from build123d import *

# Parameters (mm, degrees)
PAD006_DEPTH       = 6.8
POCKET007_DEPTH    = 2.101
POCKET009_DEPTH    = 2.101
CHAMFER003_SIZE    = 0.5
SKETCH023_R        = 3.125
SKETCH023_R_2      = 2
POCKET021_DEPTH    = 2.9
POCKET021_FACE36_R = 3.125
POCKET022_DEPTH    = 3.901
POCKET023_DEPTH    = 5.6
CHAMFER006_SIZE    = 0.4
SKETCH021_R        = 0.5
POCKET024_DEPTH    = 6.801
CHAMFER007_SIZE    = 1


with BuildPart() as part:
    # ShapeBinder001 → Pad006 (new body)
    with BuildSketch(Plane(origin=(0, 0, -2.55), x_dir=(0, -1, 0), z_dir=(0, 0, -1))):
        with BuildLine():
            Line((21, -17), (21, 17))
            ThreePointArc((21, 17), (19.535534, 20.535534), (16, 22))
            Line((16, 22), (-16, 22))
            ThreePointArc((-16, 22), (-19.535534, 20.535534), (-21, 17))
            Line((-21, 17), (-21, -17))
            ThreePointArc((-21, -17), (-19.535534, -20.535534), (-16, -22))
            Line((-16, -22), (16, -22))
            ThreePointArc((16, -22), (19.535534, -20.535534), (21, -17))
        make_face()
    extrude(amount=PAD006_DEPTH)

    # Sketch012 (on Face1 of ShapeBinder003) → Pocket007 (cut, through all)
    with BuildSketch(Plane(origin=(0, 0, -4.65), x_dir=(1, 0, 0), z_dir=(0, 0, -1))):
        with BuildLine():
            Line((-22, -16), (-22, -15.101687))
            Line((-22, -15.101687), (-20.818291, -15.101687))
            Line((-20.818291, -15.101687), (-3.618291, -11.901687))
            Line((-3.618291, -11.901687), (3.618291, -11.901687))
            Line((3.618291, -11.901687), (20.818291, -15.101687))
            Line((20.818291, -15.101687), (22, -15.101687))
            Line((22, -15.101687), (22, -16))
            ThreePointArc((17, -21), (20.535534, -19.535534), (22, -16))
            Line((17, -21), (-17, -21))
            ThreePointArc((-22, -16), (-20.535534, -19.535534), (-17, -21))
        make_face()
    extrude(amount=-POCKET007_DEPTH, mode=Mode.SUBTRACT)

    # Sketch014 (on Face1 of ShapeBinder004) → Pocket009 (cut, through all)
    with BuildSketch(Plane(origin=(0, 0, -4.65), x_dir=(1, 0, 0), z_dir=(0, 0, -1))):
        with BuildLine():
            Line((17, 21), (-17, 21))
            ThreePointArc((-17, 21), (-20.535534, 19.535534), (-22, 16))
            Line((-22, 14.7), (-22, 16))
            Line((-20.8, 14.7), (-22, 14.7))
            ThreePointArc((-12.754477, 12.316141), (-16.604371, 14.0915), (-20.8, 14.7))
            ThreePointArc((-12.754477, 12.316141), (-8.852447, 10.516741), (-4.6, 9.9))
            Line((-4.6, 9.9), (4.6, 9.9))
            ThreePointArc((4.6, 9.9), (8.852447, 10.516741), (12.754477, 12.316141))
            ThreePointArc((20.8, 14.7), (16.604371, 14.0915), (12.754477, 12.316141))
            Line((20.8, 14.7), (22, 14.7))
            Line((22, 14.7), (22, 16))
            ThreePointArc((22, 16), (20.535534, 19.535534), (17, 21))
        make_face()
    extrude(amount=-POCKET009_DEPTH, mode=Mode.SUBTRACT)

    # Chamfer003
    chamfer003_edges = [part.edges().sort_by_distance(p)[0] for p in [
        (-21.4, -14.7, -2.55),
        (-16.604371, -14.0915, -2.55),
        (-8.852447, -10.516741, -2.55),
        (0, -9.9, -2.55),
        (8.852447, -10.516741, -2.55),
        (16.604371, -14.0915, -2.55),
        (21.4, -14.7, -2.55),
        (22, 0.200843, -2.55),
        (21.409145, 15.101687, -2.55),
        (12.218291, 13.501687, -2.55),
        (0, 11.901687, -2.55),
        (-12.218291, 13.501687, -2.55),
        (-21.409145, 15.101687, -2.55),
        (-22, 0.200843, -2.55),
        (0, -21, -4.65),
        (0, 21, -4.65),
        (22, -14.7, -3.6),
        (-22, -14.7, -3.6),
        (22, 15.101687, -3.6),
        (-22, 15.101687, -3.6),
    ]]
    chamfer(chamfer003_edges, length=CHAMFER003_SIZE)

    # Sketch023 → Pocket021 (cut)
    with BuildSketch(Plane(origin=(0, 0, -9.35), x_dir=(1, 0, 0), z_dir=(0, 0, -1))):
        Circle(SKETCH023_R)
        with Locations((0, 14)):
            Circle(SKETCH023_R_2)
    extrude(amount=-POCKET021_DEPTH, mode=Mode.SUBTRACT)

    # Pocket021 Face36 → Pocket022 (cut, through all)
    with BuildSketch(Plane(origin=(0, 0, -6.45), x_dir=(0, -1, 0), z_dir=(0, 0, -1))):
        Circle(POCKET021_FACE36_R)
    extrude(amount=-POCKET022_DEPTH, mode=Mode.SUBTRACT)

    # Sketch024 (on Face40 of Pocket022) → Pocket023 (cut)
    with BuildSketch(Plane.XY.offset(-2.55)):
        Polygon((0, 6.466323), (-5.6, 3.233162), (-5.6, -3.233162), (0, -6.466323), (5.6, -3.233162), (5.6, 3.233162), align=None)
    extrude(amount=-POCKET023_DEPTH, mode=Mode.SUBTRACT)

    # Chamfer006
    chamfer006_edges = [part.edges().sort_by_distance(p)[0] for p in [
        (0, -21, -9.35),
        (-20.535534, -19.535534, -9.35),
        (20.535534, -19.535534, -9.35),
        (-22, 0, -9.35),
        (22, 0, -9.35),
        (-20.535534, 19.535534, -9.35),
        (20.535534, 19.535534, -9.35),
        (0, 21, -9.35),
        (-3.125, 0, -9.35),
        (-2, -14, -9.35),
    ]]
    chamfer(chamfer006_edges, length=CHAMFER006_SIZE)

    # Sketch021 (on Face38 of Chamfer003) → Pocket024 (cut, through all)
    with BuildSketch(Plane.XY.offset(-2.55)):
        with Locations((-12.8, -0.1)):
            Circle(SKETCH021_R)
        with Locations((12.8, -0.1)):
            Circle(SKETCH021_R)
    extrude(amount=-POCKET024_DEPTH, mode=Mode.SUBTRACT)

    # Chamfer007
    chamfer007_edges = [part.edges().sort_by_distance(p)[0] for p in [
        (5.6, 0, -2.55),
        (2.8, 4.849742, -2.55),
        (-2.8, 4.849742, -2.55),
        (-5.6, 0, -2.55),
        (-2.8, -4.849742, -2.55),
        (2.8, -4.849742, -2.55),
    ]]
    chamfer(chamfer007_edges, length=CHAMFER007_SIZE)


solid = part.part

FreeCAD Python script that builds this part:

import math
import FreeCAD as App
import Part
import Sketcher

V = App.Vector
Q = App.Units.Quantity


def edges_at(feature, points):
    """Names of the edges that pass closest to the given points."""
    edges = feature.Shape.Edges
    near = lambda p: min(range(len(edges)), key=lambda i: edges[i].distToShape(Part.Vertex(*p))[0])
    return sorted({f"Edge{near(p) + 1}" for p in points})


def add_polygon(sketch, points):
    """Adds a closed chain of lines whose ends are joined by coincident constraints."""
    first, n = sketch.GeometryCount, len(points)
    for a, b in zip(points, points[1:] + points[:1]):
        sketch.addGeometry(Part.LineSegment(App.Vector(*a, 0), App.Vector(*b, 0)), False)
    for i in range(n):
        sketch.addConstraint(Sketcher.Constraint("Coincident", first + i, 2, first + (i + 1) % n, 1))

doc = App.newDocument("Part")
body = doc.addObject("PartDesign::Body", "Body")

# Sketch on XY plane
sketch1 = doc.addObject("Sketcher::SketchObject", "Sketch")
body.addObject(sketch1)
sketch1.AttachmentSupport = (doc.XY_Plane, [""])
sketch1.MapMode = "FlatFace"
sketch1.AttachmentOffset = App.Placement(V(0, 0, -2.55), App.Rotation())
sketch1.addGeometry([
    Part.LineSegment(V(17, -21, 0), V(-17, -21, 0)),  # 0
    Part.ArcOfCircle(Part.Circle(V(-17, -16, 0), V(0, 0, 1), 5), math.radians(180), math.radians(270)),  # 1
    Part.LineSegment(V(-22, -16, 0), V(-22, 16, 0)),  # 2
    Part.ArcOfCircle(Part.Circle(V(-17, 16, 0), V(0, 0, 1), 5), math.radians(90), math.radians(180)),  # 3
    Part.LineSegment(V(-17, 21, 0), V(17, 21, 0)),  # 4
    Part.ArcOfCircle(Part.Circle(V(17, 16, 0), V(0, 0, 1), 5), math.radians(0), math.radians(90)),  # 5
    Part.LineSegment(V(22, 16, 0), V(22, -16, 0)),  # 6
    Part.ArcOfCircle(Part.Circle(V(17, -16, 0), V(0, 0, 1), 5), math.radians(-90), math.radians(0)),  # 7
], False)
sketch1.addConstraint([
    Sketcher.Constraint("Tangent", 0, 2, 1, 2),
    Sketcher.Constraint("Tangent", 1, 1, 2, 1),
    Sketcher.Constraint("Tangent", 2, 2, 3, 2),
    Sketcher.Constraint("Tangent", 3, 1, 4, 1),
    Sketcher.Constraint("Tangent", 4, 2, 5, 2),
    Sketcher.Constraint("Tangent", 5, 1, 6, 1),
    Sketcher.Constraint("Tangent", 6, 2, 7, 2),
    Sketcher.Constraint("Tangent", 7, 1, 0, 1),
    Sketcher.Constraint("Horizontal", 0),
    Sketcher.Constraint("Vertical", 2),
    Sketcher.Constraint("Horizontal", 4),
    Sketcher.Constraint("Vertical", 6),
    Sketcher.Constraint("Equal", 1, 3),
    Sketcher.Constraint("Equal", 3, 5),
    Sketcher.Constraint("Equal", 5, 7),
    Sketcher.Constraint("Symmetric", 1, 3, 5, 3, -1, 1),
    Sketcher.Constraint("Radius", 1, 5.0),
    Sketcher.Constraint("DistanceX", 0, 2, 0, 1, 34.0),
    Sketcher.Constraint("DistanceY", 2, 1, 2, 2, 32.0),
])
pad1 = doc.addObject("PartDesign::Pad", "Pad")
body.addObject(pad1)
pad1.Profile = sketch1
pad1.Length = 6.8
pad1.Reversed = True

# Sketch on XY plane
sketch2 = doc.addObject("Sketcher::SketchObject", "Sketch001")
body.addObject(sketch2)
sketch2.AttachmentSupport = (doc.XY_Plane, [""])
sketch2.MapMode = "FlatFace"
sketch2.AttachmentOffset = App.Placement(V(0, 0, -4.65), App.Rotation())
sketch2.addGeometry([
    Part.LineSegment(V(-22, 15.1, 0), V(-22, 16, 0)),  # 0
    Part.ArcOfCircle(Part.Circle(V(-17, 16, 0), V(0, 0, 1), 5), math.radians(90), math.radians(180)),  # 1
    Part.LineSegment(V(-17, 21, 0), V(17, 21, 0)),  # 2
    Part.ArcOfCircle(Part.Circle(V(17, 16, 0), V(0, 0, 1), 5), math.radians(0), math.radians(90)),  # 3
    Part.LineSegment(V(22, 16, 0), V(22, 15.1, 0)),  # 4
    Part.LineSegment(V(22, 15.1, 0), V(20.8, 15.1, 0)),  # 5
    Part.LineSegment(V(20.8, 15.1, 0), V(3.6, 11.9, 0)),  # 6
    Part.LineSegment(V(3.6, 11.9, 0), V(-3.6, 11.9, 0)),  # 7
    Part.LineSegment(V(-3.6, 11.9, 0), V(-20.8, 15.1, 0)),  # 8
    Part.LineSegment(V(-20.8, 15.1, 0), V(-22, 15.1, 0)),  # 9
], False)
sketch2.addConstraint([
    Sketcher.Constraint("Tangent", 0, 2, 1, 2),
    Sketcher.Constraint("Tangent", 1, 1, 2, 1),
    Sketcher.Constraint("Tangent", 2, 2, 3, 2),
    Sketcher.Constraint("Tangent", 3, 1, 4, 1),
    Sketcher.Constraint("Coincident", 4, 2, 5, 1),
    Sketcher.Constraint("Coincident", 5, 2, 6, 1),
    Sketcher.Constraint("Coincident", 6, 2, 7, 1),
    Sketcher.Constraint("Coincident", 7, 2, 8, 1),
    Sketcher.Constraint("Coincident", 8, 2, 9, 1),
    Sketcher.Constraint("Coincident", 9, 2, 0, 1),
    Sketcher.Constraint("Vertical", 0),
    Sketcher.Constraint("Horizontal", 2),
    Sketcher.Constraint("Vertical", 4),
    Sketcher.Constraint("Horizontal", 5),
    Sketcher.Constraint("Horizontal", 7),
    Sketcher.Constraint("Horizontal", 9),
    Sketcher.Constraint("Equal", 1, 3),
    Sketcher.Constraint("Symmetric", 5, 2, 8, 2, -2),
    Sketcher.Constraint("Equal", 5, 9),
    Sketcher.Constraint("Equal", 6, 8),
    Sketcher.Constraint("Radius", 1, 5.0),
    Sketcher.Constraint("DistanceX", 2, 1, 2, 2, 34.0),
    Sketcher.Constraint("DistanceY", -1, 1, 1, 3, 16.0),
    Sketcher.Constraint("DistanceX", 6, 2, 5, 2, 17.2),
    Sketcher.Constraint("DistanceY", 6, 2, 5, 2, 3.2),
    Sketcher.Constraint("DistanceX", 5, 2, 5, 1, 1.181709),
    Sketcher.Constraint("DistanceY", 0, 1, 0, 2, 0.898313),
])
pocket1 = doc.addObject("PartDesign::Pocket", "Pocket")
body.addObject(pocket1)
pocket1.Profile = sketch2
pocket1.Type = "ThroughAll"
pocket1.Reversed = True

# Sketch on XY plane
sketch3 = doc.addObject("Sketcher::SketchObject", "Sketch002")
body.addObject(sketch3)
sketch3.AttachmentSupport = (doc.XY_Plane, [""])
sketch3.MapMode = "FlatFace"
sketch3.AttachmentOffset = App.Placement(V(0, 0, -4.65), App.Rotation())
sketch3.addGeometry([
    Part.LineSegment(V(17, -21, 0), V(-17, -21, 0)),  # 0
    Part.ArcOfCircle(Part.Circle(V(-17, -16, 0), V(0, 0, 1), 5), math.radians(180), math.radians(270)),  # 1
    Part.LineSegment(V(-22, -16, 0), V(-22, -14.7, 0)),  # 2
    Part.LineSegment(V(-22, -14.7, 0), V(-20.8, -14.7, 0)),  # 3
    Part.ArcOfCircle(Part.Circle(V(-20.8, 0.1, 0), V(0, 0, 1), 14.8), math.radians(-90), math.radians(-57)),  # 4
    Part.ArcOfCircle(Part.Circle(V(-4.6, -24.9, 0), V(0, 0, 1), 15), math.radians(90), math.radians(123)),  # 5
    Part.LineSegment(V(-4.6, -9.9, 0), V(4.6, -9.9, 0)),  # 6
    Part.ArcOfCircle(Part.Circle(V(4.6, -24.9, 0), V(0, 0, 1), 15), math.radians(57), math.radians(90)),  # 7
    Part.ArcOfCircle(Part.Circle(V(20.8, 0.1, 0), V(0, 0, 1), 14.8), math.radians(-123), math.radians(-90)),  # 8
    Part.LineSegment(V(20.8, -14.7, 0), V(22, -14.7, 0)),  # 9
    Part.LineSegment(V(22, -14.7, 0), V(22, -16, 0)),  # 10
    Part.ArcOfCircle(Part.Circle(V(17, -16, 0), V(0, 0, 1), 5), math.radians(-90), math.radians(0)),  # 11
], False)
sketch3.addConstraint([
    Sketcher.Constraint("Tangent", 0, 2, 1, 2),
    Sketcher.Constraint("Tangent", 1, 1, 2, 1),
    Sketcher.Constraint("Coincident", 2, 2, 3, 1),
    Sketcher.Constraint("Tangent", 3, 2, 4, 1),
    Sketcher.Constraint("Tangent", 4, 2, 5, 2),
    Sketcher.Constraint("Tangent", 5, 1, 6, 1),
    Sketcher.Constraint("Tangent", 6, 2, 7, 2),
    Sketcher.Constraint("Tangent", 7, 1, 8, 1),
    Sketcher.Constraint("Tangent", 8, 2, 9, 1),
    Sketcher.Constraint("Coincident", 9, 2, 10, 1),
    Sketcher.Constraint("Tangent", 10, 2, 11, 2),
    Sketcher.Constraint("Tangent", 11, 1, 0, 1),
    Sketcher.Constraint("Horizontal", 0),
    Sketcher.Constraint("Vertical", 2),
    Sketcher.Constraint("Horizontal", 3),
    Sketcher.Constraint("Horizontal", 6),
    Sketcher.Constraint("Horizontal", 9),
    Sketcher.Constraint("Vertical", 10),
    Sketcher.Constraint("Equal", 5, 7),
    Sketcher.Constraint("Equal", 4, 8),
    Sketcher.Constraint("Equal", 1, 11),
    Sketcher.Constraint("Symmetric", 4, 3, 8, 3, -2),
    Sketcher.Constraint("Equal", 3, 9),
    Sketcher.Constraint("Radius", 1, 5.0),
    Sketcher.Constraint("DistanceX", 0, 2, 0, 1, 34.0),
    Sketcher.Constraint("DistanceX", 3, 1, 3, 2, 1.2),
    Sketcher.Constraint("DistanceX", 6, 1, 6, 2, 9.2),
    Sketcher.Constraint("DistanceY", 2, 1, 2, 2, 1.3),
    Sketcher.Constraint("DistanceY", 1, 3, -1, 1, 16.0),
    Sketcher.Constraint("DistanceY", 5, 1, -1, 1, 9.9),
    Sketcher.Constraint("Radius", 4, 14.768741),
])
pocket2 = doc.addObject("PartDesign::Pocket", "Pocket001")
body.addObject(pocket2)
pocket2.Profile = sketch3
pocket2.Type = "ThroughAll"
pocket2.Reversed = True
doc.recompute()

chamfer = doc.addObject("PartDesign::Chamfer", "Chamfer")
body.addObject(chamfer)
chamfer.Base = (pocket2, edges_at(pocket2, [
    (-21.4, -14.7, -2.55),
    (-16.604, -14.091, -2.55),
    (-8.852, -10.517, -2.55),
    (0, -9.9, -2.55),
    (8.852, -10.517, -2.55),
    (16.604, -14.091, -2.55),
    (21.4, -14.7, -2.55),
    (22, 0.201, -2.55),
    (21.409, 15.102, -2.55),
    (12.218, 13.502, -2.55),
    (0, 11.902, -2.55),
    (-12.218, 13.502, -2.55),
    (-21.409, 15.102, -2.55),
    (-22, 0.201, -2.55),
    (0, -21, -4.65),
    (0, 21, -4.65),
    (22, -14.7, -3.6),
    (-22, -14.7, -3.6),
    (22, 15.102, -3.6),
    (-22, 15.102, -3.6),
]))
chamfer.Size = 0.5

# Sketch on XY plane
sketch4 = doc.addObject("Sketcher::SketchObject", "Sketch003")
body.addObject(sketch4)
sketch4.AttachmentSupport = (doc.XY_Plane, [""])
sketch4.MapMode = "FlatFace"
sketch4.AttachmentOffset = App.Placement(V(0, 0, -9.35), App.Rotation())
sketch4.addGeometry([
    Part.Circle(V(0, 0, 0), V(0, 0, 1), 3.1),
    Part.Circle(V(0, -14, 0), V(0, 0, 1), 2),
], False)
sketch4.addConstraint([
    Sketcher.Constraint("Coincident", 0, 3, -1, 1),
    Sketcher.Constraint("PointOnObject", 1, 3, -2),
    Sketcher.Constraint("Diameter", 1, 4.0),
    Sketcher.Constraint("Diameter", 0, 6.25),
    Sketcher.Constraint("DistanceY", 1, 3, -1, 1, 14.0),
])
pocket3 = doc.addObject("PartDesign::Pocket", "Pocket002")
body.addObject(pocket3)
pocket3.Profile = sketch4
pocket3.Length = 2.9
pocket3.Reversed = True

# Sketch on XY plane
sketch5 = doc.addObject("Sketcher::SketchObject", "Sketch004")
body.addObject(sketch5)
sketch5.AttachmentSupport = (doc.XY_Plane, [""])
sketch5.MapMode = "FlatFace"
sketch5.AttachmentOffset = App.Placement(V(0, 0, -6.45), App.Rotation())
sketch5.addGeometry(Part.Circle(V(0, 0, 0), V(0, 0, 1), 3.1), False)
sketch5.addConstraint([
    Sketcher.Constraint("Coincident", 0, 3, -1, 1),
    Sketcher.Constraint("Diameter", 0, 6.25),
])
pocket4 = doc.addObject("PartDesign::Pocket", "Pocket003")
body.addObject(pocket4)
pocket4.Profile = sketch5
pocket4.Type = "ThroughAll"
pocket4.Reversed = True

# Sketch on XY plane
sketch6 = doc.addObject("Sketcher::SketchObject", "Sketch005")
body.addObject(sketch6)
sketch6.AttachmentSupport = (doc.XY_Plane, [""])
sketch6.MapMode = "FlatFace"
sketch6.AttachmentOffset = App.Placement(V(0, 0, -2.55), App.Rotation())
add_polygon(sketch6, [(0, 6), (-6, 3), (-6, -3), (0, -6), (6, -3), (6, 3)])  # lines 0-5
sketch6.addConstraint([
    Sketcher.Constraint("Vertical", 1),
    Sketcher.Constraint("Vertical", 4),
    Sketcher.Constraint("Symmetric", 0, 2, 3, 2, -1, 1),
    Sketcher.Constraint("Symmetric", 2, 2, 5, 2, -1, 1),
    Sketcher.Constraint("PointOnObject", 2, 2, -2),
    Sketcher.Constraint("Parallel", 2, 5),
    Sketcher.Constraint("Horizontal", 1, 2, 3, 2),
    Sketcher.Constraint("Angle", 0, Q("-150.000004 deg")),
    Sketcher.Constraint("DistanceX", 0, 2, -1, 1, 5.6),
    Sketcher.Constraint("DistanceY", 1, 2, 1, 1, 6.466324),
])
pocket5 = doc.addObject("PartDesign::Pocket", "Pocket004")
body.addObject(pocket5)
pocket5.Profile = sketch6
pocket5.Length = 5.6
doc.recompute()

chamfer2 = doc.addObject("PartDesign::Chamfer", "Chamfer001")
body.addObject(chamfer2)
chamfer2.Base = (pocket5, edges_at(pocket5, [
    (0, -21, -9.35),
    (-20.536, -19.536, -9.35),
    (20.536, -19.536, -9.35),
    (-22, 0, -9.35),
    (22, 0, -9.35),
    (-20.536, 19.536, -9.35),
    (20.536, 19.536, -9.35),
    (0, 21, -9.35),
    (-3.125, 0, -9.35),
    (-2, -14, -9.35),
]))
chamfer2.Size = 0.4

# Sketch on XY plane
sketch7 = doc.addObject("Sketcher::SketchObject", "Sketch006")
body.addObject(sketch7)
sketch7.AttachmentSupport = (doc.XY_Plane, [""])
sketch7.MapMode = "FlatFace"
sketch7.AttachmentOffset = App.Placement(V(0, 0, -2.55), App.Rotation())
sketch7.addGeometry([
    Part.Circle(V(-12.8, -0.1, 0), V(0, 0, 1), 0.5),
    Part.Circle(V(12.8, -0.1, 0), V(0, 0, 1), 0.5),
], False)
sketch7.addConstraint([
    Sketcher.Constraint("Equal", 0, 1),
    Sketcher.Constraint("Symmetric", 0, 3, 1, 3, -2),
    Sketcher.Constraint("Diameter", 0, 1.0),
    Sketcher.Constraint("DistanceX", 0, 3, -1, 1, 12.8),
    Sketcher.Constraint("DistanceY", 0, 3, -1, 1, 0.1),
])
pocket6 = doc.addObject("PartDesign::Pocket", "Pocket005")
body.addObject(pocket6)
pocket6.Profile = sketch7
pocket6.Type = "ThroughAll"
doc.recompute()

chamfer3 = doc.addObject("PartDesign::Chamfer", "Chamfer002")
body.addObject(chamfer3)
chamfer3.Base = (pocket6, edges_at(pocket6, [
    (5.6, 0, -2.55),
    (2.8, 4.85, -2.55),
    (-2.8, 4.85, -2.55),
    (-5.6, 0, -2.55),
    (-2.8, -4.85, -2.55),
    (2.8, -4.85, -2.55),
]))
chamfer3.Size = 1

doc.recompute()
